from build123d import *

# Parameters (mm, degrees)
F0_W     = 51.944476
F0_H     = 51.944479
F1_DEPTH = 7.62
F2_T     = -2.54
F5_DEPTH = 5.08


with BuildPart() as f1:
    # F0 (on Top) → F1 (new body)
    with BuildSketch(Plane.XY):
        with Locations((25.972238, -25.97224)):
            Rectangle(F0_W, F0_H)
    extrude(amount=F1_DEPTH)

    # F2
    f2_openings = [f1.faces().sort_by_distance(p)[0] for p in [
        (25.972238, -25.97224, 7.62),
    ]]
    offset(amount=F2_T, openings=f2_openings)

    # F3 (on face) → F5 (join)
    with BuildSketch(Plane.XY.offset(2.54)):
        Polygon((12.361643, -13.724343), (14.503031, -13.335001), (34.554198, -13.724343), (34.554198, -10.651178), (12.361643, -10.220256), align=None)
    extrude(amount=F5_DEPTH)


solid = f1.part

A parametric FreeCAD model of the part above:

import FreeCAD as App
import Part
import Sketcher
from FreeCAD import Vector
Q = App.Units.Quantity


def faces_at(feature, points):
    """Names of the faces that lie closest to the given points."""
    faces = feature.Shape.Faces
    near = lambda p: min(range(len(faces)), key=lambda i: faces[i].distToShape(Part.Vertex(*p))[0])
    return sorted({f"Face{near(p) + 1}" for p in points})

doc = App.newDocument("Part")
body = doc.addObject("PartDesign::Body", "Body")

# Sketch on XY plane
sketch1 = body.newObject("Sketcher::SketchObject", "Sketch")
sketch1.AttachmentSupport = (doc.getObject("XY_Plane"), [""])
sketch1.MapMode = "FlatFace"
sketch1.addGeometry([
    Part.LineSegment(Vector(0, 0, 0), Vector(0, -51.944479, 0)),
    Part.LineSegment(Vector(0, -51.944479, 0), Vector(51.944476, -51.944479, 0)),
    Part.LineSegment(Vector(51.944476, -51.944479, 0), Vector(51.944476, 0, 0)),
    Part.LineSegment(Vector(51.944476, 0, 0), Vector(0, 0, 0)),
], False)
sketch1.addConstraint([
    Sketcher.Constraint("Coincident", 0, 2, 1, 1),
    Sketcher.Constraint("Coincident", 1, 2, 2, 1),
    Sketcher.Constraint("Coincident", 2, 2, 3, 1),
    Sketcher.Constraint("Coincident", 3, 2, 0, 1),
    Sketcher.Constraint("Vertical", 0),
    Sketcher.Constraint("Horizontal", 1),
    Sketcher.Constraint("Vertical", 2),
    Sketcher.Constraint("Horizontal", 3),
    Sketcher.Constraint("Coincident", 3, 2, -1, 1),
    Sketcher.Constraint("DistanceY", 0, 2, 0, 1, 51.944479),
    Sketcher.Constraint("DistanceX", 1, 1, 1, 2, 51.944476),
])
pad1 = body.newObject("PartDesign::Pad", "Pad")
pad1.Profile = sketch1
pad1.Length = Q("0.3 in")
doc.recompute()

thickness = body.newObject("PartDesign::Thickness", "Thickness")
thickness.Base = (pad1, faces_at(pad1, [(25.972, -25.972, 7.62)]))
thickness.Value = Q("0.1 in")
thickness.Reversed = True
thickness.Join = "Arc"

# Sketch on XY plane
sketch2 = body.newObject("Sketcher::SketchObject", "Sketch001")
sketch2.AttachmentSupport = (doc.getObject("XY_Plane"), [""])
sketch2.MapMode = "FlatFace"
sketch2.AttachmentOffset = App.Placement(Vector(0, 0, 0.1 * 25.4), App.Rotation())
sketch2.addGeometry([
    Part.LineSegment(Vector(12.361643, -13.724343, 0), Vector(14.503031, -13.335001, 0)),  # 0
    Part.LineSegment(Vector(14.503031, -13.335001, 0), Vector(34.554198, -13.724343, 0)),  # 1
    Part.LineSegment(Vector(34.554198, -13.724343, 0), Vector(34.554198, -10.651178, 0)),  # 2
    Part.LineSegment(Vector(34.554198, -10.651178, 0), Vector(12.361643, -10.220256, 0)),  # 3
    Part.LineSegment(Vector(12.361643, -10.220256, 0), Vector(12.361643, -13.724343, 0)),  # 4
], False)
sketch2.addConstraint([
    Sketcher.Constraint("Coincident", 0, 2, 1, 1),
    Sketcher.Constraint("Coincident", 1, 2, 2, 1),
    Sketcher.Constraint("Coincident", 2, 2, 3, 1),
    Sketcher.Constraint("Coincident", 3, 2, 4, 1),
    Sketcher.Constraint("Coincident", 4, 2, 0, 1),
    Sketcher.Constraint("Vertical", 2),
    Sketcher.Constraint("Vertical", 4),
    Sketcher.Constraint("Parallel", 1, 3),
    Sketcher.Constraint("Horizontal", 1, 2, 4, 2),
    Sketcher.Constraint("DistanceY", 0, 2, -1, 1, Q("0.525 in")),
    Sketcher.Constraint("Distance", 3, 22.196738),
    Sketcher.Constraint("DistanceY", 2, 1, 2, 2, 3.073165),
    Sketcher.Constraint("DistanceY", 4, 2, 4, 1, 3.504087),
    Sketcher.Constraint("DistanceX", -1, 1, 0, 2, 14.503031),
    Sketcher.Constraint("DistanceY", 1, 2, 0, 2, 0.389342),
])
pad2 = body.newObject("PartDesign::Pad", "Pad001")
pad2.Profile = sketch2
pad2.Length = Q("0.2 in")

doc.recompute()
